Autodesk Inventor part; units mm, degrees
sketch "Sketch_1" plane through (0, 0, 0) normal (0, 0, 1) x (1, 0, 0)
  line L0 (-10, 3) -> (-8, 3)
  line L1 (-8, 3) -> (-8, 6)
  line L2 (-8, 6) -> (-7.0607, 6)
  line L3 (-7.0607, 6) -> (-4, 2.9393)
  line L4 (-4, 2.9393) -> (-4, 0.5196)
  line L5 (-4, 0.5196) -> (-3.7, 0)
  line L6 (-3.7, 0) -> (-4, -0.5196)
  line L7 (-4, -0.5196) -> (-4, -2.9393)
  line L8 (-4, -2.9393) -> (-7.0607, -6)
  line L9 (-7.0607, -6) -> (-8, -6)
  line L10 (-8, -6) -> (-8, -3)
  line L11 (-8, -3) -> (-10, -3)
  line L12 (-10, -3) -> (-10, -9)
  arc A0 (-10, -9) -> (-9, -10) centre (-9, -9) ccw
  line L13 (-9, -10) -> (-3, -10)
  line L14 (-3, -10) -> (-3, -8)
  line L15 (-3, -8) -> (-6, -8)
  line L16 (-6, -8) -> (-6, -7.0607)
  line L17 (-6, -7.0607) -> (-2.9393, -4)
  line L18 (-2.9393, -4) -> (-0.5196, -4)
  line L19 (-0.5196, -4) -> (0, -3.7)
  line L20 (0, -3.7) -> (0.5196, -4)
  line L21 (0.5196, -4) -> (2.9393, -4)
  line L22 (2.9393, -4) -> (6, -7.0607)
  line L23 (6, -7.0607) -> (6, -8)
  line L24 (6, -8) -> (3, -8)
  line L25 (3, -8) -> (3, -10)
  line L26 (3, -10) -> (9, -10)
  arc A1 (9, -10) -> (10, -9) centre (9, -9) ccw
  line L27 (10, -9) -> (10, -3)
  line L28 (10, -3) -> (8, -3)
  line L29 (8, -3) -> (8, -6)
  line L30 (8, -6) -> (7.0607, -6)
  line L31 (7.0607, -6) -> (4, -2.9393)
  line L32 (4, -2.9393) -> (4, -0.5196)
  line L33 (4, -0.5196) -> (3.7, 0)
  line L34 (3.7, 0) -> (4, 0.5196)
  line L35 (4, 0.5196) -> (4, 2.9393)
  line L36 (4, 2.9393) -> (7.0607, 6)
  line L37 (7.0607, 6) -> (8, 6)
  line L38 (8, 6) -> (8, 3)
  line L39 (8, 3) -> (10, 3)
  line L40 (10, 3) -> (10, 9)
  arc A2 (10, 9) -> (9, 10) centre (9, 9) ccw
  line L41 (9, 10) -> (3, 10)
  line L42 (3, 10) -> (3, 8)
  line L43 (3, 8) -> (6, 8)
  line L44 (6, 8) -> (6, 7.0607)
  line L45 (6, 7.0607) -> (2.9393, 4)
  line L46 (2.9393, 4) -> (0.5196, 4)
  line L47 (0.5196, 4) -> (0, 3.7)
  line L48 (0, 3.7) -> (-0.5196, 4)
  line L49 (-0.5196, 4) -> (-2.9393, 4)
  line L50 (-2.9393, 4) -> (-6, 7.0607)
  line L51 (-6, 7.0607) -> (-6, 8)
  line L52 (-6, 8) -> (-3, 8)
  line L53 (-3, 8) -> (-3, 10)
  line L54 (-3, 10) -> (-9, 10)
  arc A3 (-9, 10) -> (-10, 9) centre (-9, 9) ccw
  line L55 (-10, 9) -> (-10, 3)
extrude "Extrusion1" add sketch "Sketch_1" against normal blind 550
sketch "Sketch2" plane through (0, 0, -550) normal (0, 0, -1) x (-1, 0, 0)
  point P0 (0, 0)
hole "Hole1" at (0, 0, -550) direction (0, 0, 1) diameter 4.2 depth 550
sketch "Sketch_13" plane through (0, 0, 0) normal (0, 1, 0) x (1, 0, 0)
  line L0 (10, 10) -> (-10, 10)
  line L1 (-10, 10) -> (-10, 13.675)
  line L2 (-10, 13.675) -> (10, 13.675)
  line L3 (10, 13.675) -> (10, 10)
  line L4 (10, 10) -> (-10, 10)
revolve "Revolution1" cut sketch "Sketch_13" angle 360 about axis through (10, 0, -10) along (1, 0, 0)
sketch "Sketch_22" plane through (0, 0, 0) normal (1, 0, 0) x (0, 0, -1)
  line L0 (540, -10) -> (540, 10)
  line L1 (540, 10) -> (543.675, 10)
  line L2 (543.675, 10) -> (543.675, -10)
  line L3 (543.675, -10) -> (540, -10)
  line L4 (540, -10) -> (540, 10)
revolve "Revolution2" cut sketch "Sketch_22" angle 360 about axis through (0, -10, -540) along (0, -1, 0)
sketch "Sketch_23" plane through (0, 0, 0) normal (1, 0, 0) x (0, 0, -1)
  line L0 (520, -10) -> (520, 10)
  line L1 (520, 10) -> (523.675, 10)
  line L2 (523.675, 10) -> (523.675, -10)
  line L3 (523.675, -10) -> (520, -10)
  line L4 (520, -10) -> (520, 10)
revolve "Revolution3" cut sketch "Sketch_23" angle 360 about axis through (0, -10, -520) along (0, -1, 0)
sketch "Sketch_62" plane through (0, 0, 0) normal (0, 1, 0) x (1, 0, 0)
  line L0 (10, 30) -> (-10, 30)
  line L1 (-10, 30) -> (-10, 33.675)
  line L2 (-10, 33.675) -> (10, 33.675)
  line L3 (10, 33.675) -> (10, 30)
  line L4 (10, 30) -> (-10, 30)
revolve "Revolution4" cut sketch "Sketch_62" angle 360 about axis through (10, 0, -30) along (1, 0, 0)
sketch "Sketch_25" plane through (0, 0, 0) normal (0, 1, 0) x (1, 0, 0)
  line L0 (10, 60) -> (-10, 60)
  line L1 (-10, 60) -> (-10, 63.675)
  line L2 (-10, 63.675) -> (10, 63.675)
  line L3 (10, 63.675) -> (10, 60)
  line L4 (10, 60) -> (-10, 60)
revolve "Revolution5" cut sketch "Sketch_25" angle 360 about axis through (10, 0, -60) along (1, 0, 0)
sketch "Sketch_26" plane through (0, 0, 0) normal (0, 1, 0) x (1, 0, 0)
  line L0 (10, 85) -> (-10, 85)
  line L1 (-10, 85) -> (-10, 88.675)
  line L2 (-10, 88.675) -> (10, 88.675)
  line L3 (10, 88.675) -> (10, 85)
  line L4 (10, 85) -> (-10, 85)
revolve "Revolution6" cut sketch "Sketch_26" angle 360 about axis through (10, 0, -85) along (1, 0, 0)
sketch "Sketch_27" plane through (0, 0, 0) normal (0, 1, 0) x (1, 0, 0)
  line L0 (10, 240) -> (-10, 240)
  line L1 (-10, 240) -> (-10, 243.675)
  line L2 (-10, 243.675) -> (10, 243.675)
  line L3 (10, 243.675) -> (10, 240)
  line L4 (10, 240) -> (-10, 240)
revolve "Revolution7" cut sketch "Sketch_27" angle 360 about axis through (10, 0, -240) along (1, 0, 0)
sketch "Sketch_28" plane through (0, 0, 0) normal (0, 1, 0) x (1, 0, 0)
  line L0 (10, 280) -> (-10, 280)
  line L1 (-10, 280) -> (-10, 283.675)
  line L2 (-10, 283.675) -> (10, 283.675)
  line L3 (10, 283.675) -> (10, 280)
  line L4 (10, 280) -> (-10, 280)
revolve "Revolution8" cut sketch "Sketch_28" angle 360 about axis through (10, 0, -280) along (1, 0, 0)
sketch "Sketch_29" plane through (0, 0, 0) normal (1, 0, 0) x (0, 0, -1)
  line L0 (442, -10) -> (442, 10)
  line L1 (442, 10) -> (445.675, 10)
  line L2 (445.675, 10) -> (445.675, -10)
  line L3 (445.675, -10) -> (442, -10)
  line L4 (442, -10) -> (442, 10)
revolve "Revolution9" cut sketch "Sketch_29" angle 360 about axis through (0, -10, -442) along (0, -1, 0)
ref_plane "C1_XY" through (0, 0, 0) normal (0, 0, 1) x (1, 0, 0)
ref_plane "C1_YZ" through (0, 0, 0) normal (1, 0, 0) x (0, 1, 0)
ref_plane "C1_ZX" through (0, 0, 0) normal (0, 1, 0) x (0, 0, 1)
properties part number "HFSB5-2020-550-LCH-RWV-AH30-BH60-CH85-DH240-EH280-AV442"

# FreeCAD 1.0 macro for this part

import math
import FreeCAD as App
import Part
import Sketcher

V = App.Vector
Q = App.Units.Quantity

doc = App.newDocument("Part")
params = doc.addObject("Spreadsheet::Sheet", "Params")
for row, (alias, value) in enumerate([
    ("sketch1_radius", "1 mm"),
    ("sketch1_width", "2 mm"),
    ("sketch1_width2", "6 mm"),
    ("sketch1_width3", "3 mm"),
    ("sketch1_length", "0.6 mm"),
    ("pad1_length", "550 mm"),
    ("sketch2_diameter", "4.2 mm"),
    ("hole_diameter", "4.2 mm"),
    ("hole_depth", "550 mm"),
    ("sketch3_width", "20 mm"),
    ("groove_angle", "360 deg"),
    ("sketch4_width", "20 mm"),
    ("groove2_angle", "360 deg"),
    ("sketch5_width", "20 mm"),
    ("groove3_angle", "360 deg"),
    ("sketch6_width", "20 mm"),
    ("groove4_angle", "360 deg"),
    ("sketch7_width", "20 mm"),
    ("groove5_angle", "360 deg"),
    ("sketch8_width", "20 mm"),
    ("groove6_angle", "360 deg"),
    ("sketch9_width", "20 mm"),
    ("groove7_angle", "360 deg"),
    ("sketch10_width", "20 mm"),
    ("groove8_angle", "360 deg"),
    ("sketch11_width", "20 mm"),
    ("groove9_angle", "360 deg"),
], start=1):
    params.set(f"A{row}", alias)
    params.set(f"B{row}", "=" + value)
    params.setAlias(f"B{row}", alias)

body = doc.addObject("PartDesign::Body", "Body")

sketch1 = body.newObject("Sketcher::SketchObject", "Sketch")
sketch1.AttachmentSupport = (doc.getObject("XY_Plane"), [""])
sketch1.MapMode = "FlatFace"
sketch1.addGeometry([
    Part.LineSegment(V(-10, 9, 0), V(-10, 3, 0)),
    Part.LineSegment(V(-10, 3, 0), V(-8, 3, 0)),
    Part.LineSegment(V(-8, 3, 0), V(-8, 6, 0)),
    Part.LineSegment(V(-8, 6, 0), V(-7.0607, 6, 0)),
    Part.LineSegment(V(-7.0607, 6, 0), V(-4, 2.9393, 0)),
    Part.LineSegment(V(-4, 2.9393, 0), V(-4, 0.5196, 0)),
    Part.LineSegment(V(-4, 0.5196, 0), V(-3.7, 0, 0)),
    Part.LineSegment(V(-3.7, 0, 0), V(-4, -0.5196, 0)),
    Part.LineSegment(V(-4, -0.5196, 0), V(-4, -2.9393, 0)),
    Part.LineSegment(V(-4, -2.9393, 0), V(-7.0607, -6, 0)),
    Part.LineSegment(V(-7.0607, -6, 0), V(-8, -6, 0)),
    Part.LineSegment(V(-8, -6, 0), V(-8, -3, 0)),
    Part.LineSegment(V(-8, -3, 0), V(-10, -3, 0)),
    Part.LineSegment(V(-10, -3, 0), V(-10, -9, 0)),
    Part.ArcOfCircle(Part.Circle(V(-9, -9, 0), V(0, 0, 1), 1), math.radians(180), math.radians(270)),
    Part.LineSegment(V(-9, -10, 0), V(-3, -10, 0)),
    Part.LineSegment(V(-3, -10, 0), V(-3, -8, 0)),
    Part.LineSegment(V(-3, -8, 0), V(-6, -8, 0)),
    Part.LineSegment(V(-6, -8, 0), V(-6, -7.0607, 0)),
    Part.LineSegment(V(-6, -7.0607, 0), V(-2.9393, -4, 0)),
    Part.LineSegment(V(-2.9393, -4, 0), V(-0.5196, -4, 0)),
    Part.LineSegment(V(-0.5196, -4, 0), V(0, -3.7, 0)),
    Part.LineSegment(V(0, -3.7, 0), V(0.5196, -4, 0)),
    Part.LineSegment(V(0.5196, -4, 0), V(2.9393, -4, 0)),
    Part.LineSegment(V(2.9393, -4, 0), V(6, -7.0607, 0)),
    Part.LineSegment(V(6, -7.0607, 0), V(6, -8, 0)),
    Part.LineSegment(V(6, -8, 0), V(3, -8, 0)),
    Part.LineSegment(V(3, -8, 0), V(3, -10, 0)),
    Part.LineSegment(V(3, -10, 0), V(9, -10, 0)),
    Part.ArcOfCircle(Part.Circle(V(9, -9, 0), V(0, 0, 1), 1), math.radians(-90), math.radians(0)),
    Part.LineSegment(V(10, -9, 0), V(10, -3, 0)),
    Part.LineSegment(V(10, -3, 0), V(8, -3, 0)),
    Part.LineSegment(V(8, -3, 0), V(8, -6, 0)),
    Part.LineSegment(V(8, -6, 0), V(7.0607, -6, 0)),
    Part.LineSegment(V(7.0607, -6, 0), V(4, -2.9393, 0)),
    Part.LineSegment(V(4, -2.9393, 0), V(4, -0.5196, 0)),
    Part.LineSegment(V(4, -0.5196, 0), V(3.7, 0, 0)),
    Part.LineSegment(V(3.7, 0, 0), V(4, 0.5196, 0)),
    Part.LineSegment(V(4, 0.5196, 0), V(4, 2.9393, 0)),
    Part.LineSegment(V(4, 2.9393, 0), V(7.0607, 6, 0)),
    Part.LineSegment(V(7.0607, 6, 0), V(8, 6, 0)),
    Part.LineSegment(V(8, 6, 0), V(8, 3, 0)),
    Part.LineSegment(V(8, 3, 0), V(10, 3, 0)),
    Part.LineSegment(V(10, 3, 0), V(10, 9, 0)),
    Part.ArcOfCircle(Part.Circle(V(9, 9, 0), V(0, 0, 1), 1), math.radians(0), math.radians(90)),
    Part.LineSegment(V(9, 10, 0), V(3, 10, 0)),
    Part.LineSegment(V(3, 10, 0), V(3, 8, 0)),
    Part.LineSegment(V(3, 8, 0), V(6, 8, 0)),
    Part.LineSegment(V(6, 8, 0), V(6, 7.0607, 0)),
    Part.LineSegment(V(6, 7.0607, 0), V(2.9393, 4, 0)),
    Part.LineSegment(V(2.9393, 4, 0), V(0.5196, 4, 0)),
    Part.LineSegment(V(0.5196, 4, 0), V(0, 3.7, 0)),
    Part.LineSegment(V(0, 3.7, 0), V(-0.5196, 4, 0)),
    Part.LineSegment(V(-0.5196, 4, 0), V(-2.9393, 4, 0)),
    Part.LineSegment(V(-2.9393, 4, 0), V(-6, 7.0607, 0)),
    Part.LineSegment(V(-6, 7.0607, 0), V(-6, 8, 0)),
    Part.LineSegment(V(-6, 8, 0), V(-3, 8, 0)),
    Part.LineSegment(V(-3, 8, 0), V(-3, 10, 0)),
    Part.LineSegment(V(-3, 10, 0), V(-9, 10, 0)),
    Part.ArcOfCircle(Part.Circle(V(-9, 9, 0), V(0, 0, 1), 1), math.radians(90), math.radians(180)),
], False)
sketch1.addConstraint([
    Sketcher.Constraint("Coincident", 0, 2, 1, 1),
    Sketcher.Constraint("Coincident", 1, 2, 2, 1),
    Sketcher.Constraint("Coincident", 2, 2, 3, 1),
    Sketcher.Constraint("Coincident", 3, 2, 4, 1),
    Sketcher.Constraint("Coincident", 4, 2, 5, 1),
    Sketcher.Constraint("Coincident", 5, 2, 6, 1),
    Sketcher.Constraint("Coincident", 6, 2, 7, 1),
    Sketcher.Constraint("Coincident", 7, 2, 8, 1),
    Sketcher.Constraint("Coincident", 8, 2, 9, 1),
    Sketcher.Constraint("Coincident", 9, 2, 10, 1),
    Sketcher.Constraint("Coincident", 10, 2, 11, 1),
    Sketcher.Constraint("Coincident", 11, 2, 12, 1),
    Sketcher.Constraint("Coincident", 12, 2, 13, 1),
    Sketcher.Constraint("Tangent", 13, 2, 14, 1),
    Sketcher.Constraint("Tangent", 14, 2, 15, 1),
    Sketcher.Constraint("Coincident", 15, 2, 16, 1),
    Sketcher.Constraint("Coincident", 16, 2, 17, 1),
    Sketcher.Constraint("Coincident", 17, 2, 18, 1),
    Sketcher.Constraint("Coincident", 18, 2, 19, 1),
    Sketcher.Constraint("Coincident", 19, 2, 20, 1),
    Sketcher.Constraint("Coincident", 20, 2, 21, 1),
    Sketcher.Constraint("Coincident", 21, 2, 22, 1),
    Sketcher.Constraint("Coincident", 22, 2, 23, 1),
    Sketcher.Constraint("Coincident", 23, 2, 24, 1),
    Sketcher.Constraint("Coincident", 24, 2, 25, 1),
    Sketcher.Constraint("Coincident", 25, 2, 26, 1),
    Sketcher.Constraint("Coincident", 26, 2, 27, 1),
    Sketcher.Constraint("Coincident", 27, 2, 28, 1),
    Sketcher.Constraint("Tangent", 28, 2, 29, 1),
    Sketcher.Constraint("Tangent", 29, 2, 30, 1),
    Sketcher.Constraint("Coincident", 30, 2, 31, 1),
    Sketcher.Constraint("Coincident", 31, 2, 32, 1),
    Sketcher.Constraint("Coincident", 32, 2, 33, 1),
    Sketcher.Constraint("Coincident", 33, 2, 34, 1),
    Sketcher.Constraint("Coincident", 34, 2, 35, 1),
    Sketcher.Constraint("Coincident", 35, 2, 36, 1),
    Sketcher.Constraint("Coincident", 36, 2, 37, 1),
    Sketcher.Constraint("Coincident", 37, 2, 38, 1),
    Sketcher.Constraint("Coincident", 38, 2, 39, 1),
    Sketcher.Constraint("Coincident", 39, 2, 40, 1),
    Sketcher.Constraint("Coincident", 40, 2, 41, 1),
    Sketcher.Constraint("Coincident", 41, 2, 42, 1),
    Sketcher.Constraint("Coincident", 42, 2, 43, 1),
    Sketcher.Constraint("Tangent", 43, 2, 44, 1),
    Sketcher.Constraint("Tangent", 44, 2, 45, 1),
    Sketcher.Constraint("Coincident", 45, 2, 46, 1),
    Sketcher.Constraint("Coincident", 46, 2, 47, 1),
    Sketcher.Constraint("Coincident", 47, 2, 48, 1),
    Sketcher.Constraint("Coincident", 48, 2, 49, 1),
    Sketcher.Constraint("Coincident", 49, 2, 50, 1),
    Sketcher.Constraint("Coincident", 50, 2, 51, 1),
    Sketcher.Constraint("Coincident", 51, 2, 52, 1),
    Sketcher.Constraint("Coincident", 52, 2, 53, 1),
    Sketcher.Constraint("Coincident", 53, 2, 54, 1),
    Sketcher.Constraint("Coincident", 54, 2, 55, 1),
    Sketcher.Constraint("Coincident", 55, 2, 56, 1),
    Sketcher.Constraint("Coincident", 56, 2, 57, 1),
    Sketcher.Constraint("Coincident", 57, 2, 58, 1),
    Sketcher.Constraint("Tangent", 58, 2, 59, 1),
    Sketcher.Constraint("Tangent", 59, 2, 0, 1),
    Sketcher.Constraint("Vertical", 0),
    Sketcher.Constraint("Horizontal", 1),
    Sketcher.Constraint("Vertical", 2),
    Sketcher.Constraint("Horizontal", 3),
    Sketcher.Constraint("Vertical", 5),
    Sketcher.Constraint("Vertical", 8),
    Sketcher.Constraint("Horizontal", 10),
    Sketcher.Constraint("Vertical", 11),
    Sketcher.Constraint("Horizontal", 12),
    Sketcher.Constraint("Vertical", 13),
    Sketcher.Constraint("Horizontal", 15),
    Sketcher.Constraint("Vertical", 16),
    Sketcher.Constraint("Horizontal", 17),
    Sketcher.Constraint("Vertical", 18),
    Sketcher.Constraint("Horizontal", 20),
    Sketcher.Constraint("Horizontal", 23),
    Sketcher.Constraint("Vertical", 25),
    Sketcher.Constraint("Horizontal", 26),
    Sketcher.Constraint("Vertical", 27),
    Sketcher.Constraint("Horizontal", 28),
    Sketcher.Constraint("Vertical", 30),
    Sketcher.Constraint("Horizontal", 31),
    Sketcher.Constraint("Vertical", 32),
    Sketcher.Constraint("Horizontal", 33),
    Sketcher.Constraint("Vertical", 35),
    Sketcher.Constraint("Vertical", 38),
    Sketcher.Constraint("Horizontal", 40),
    Sketcher.Constraint("Vertical", 41),
    Sketcher.Constraint("Horizontal", 42),
    Sketcher.Constraint("Vertical", 43),
    Sketcher.Constraint("Horizontal", 45),
    Sketcher.Constraint("Vertical", 46),
    Sketcher.Constraint("Horizontal", 47),
    Sketcher.Constraint("Vertical", 48),
    Sketcher.Constraint("Horizontal", 50),
    Sketcher.Constraint("Horizontal", 53),
    Sketcher.Constraint("Vertical", 55),
    Sketcher.Constraint("Horizontal", 56),
    Sketcher.Constraint("Vertical", 57),
    Sketcher.Constraint("Horizontal", 58),
    Sketcher.Constraint("Equal", 14, 29),
    Sketcher.Constraint("Equal", 29, 44),
    Sketcher.Constraint("Equal", 44, 59),
    Sketcher.Constraint("Symmetric", 14, 3, 44, 3, -1, 1),
    Sketcher.Constraint("Symmetric", 29, 3, 59, 3, -1, 1),
    Sketcher.Constraint("Symmetric", 1, 2, 31, 2, -1, 1),
    Sketcher.Constraint("Symmetric", 3, 2, 33, 2, -1, 1),
    Sketcher.Constraint("Symmetric", 4, 2, 34, 2, -1, 1),
    Sketcher.Constraint("Symmetric", 6, 2, 36, 2, -1, 1),
    Sketcher.Constraint("Symmetric", 7, 2, 37, 2, -1, 1),
    Sketcher.Constraint("Symmetric", 9, 2, 39, 2, -1, 1),
    Sketcher.Constraint("Symmetric", 11, 2, 41, 2, -1, 1),
    Sketcher.Constraint("Symmetric", 16, 2, 46, 2, -1, 1),
    Sketcher.Constraint("Symmetric", 18, 2, 48, 2, -1, 1),
    Sketcher.Constraint("Symmetric", 19, 2, 49, 2, -1, 1),
    Sketcher.Constraint("Symmetric", 21, 2, 51, 2, -1, 1),
    Sketcher.Constraint("Symmetric", 22, 2, 52, 2, -1, 1),
    Sketcher.Constraint("Symmetric", 24, 2, 54, 2, -1, 1),
    Sketcher.Constraint("Symmetric", 26, 2, 56, 2, -1, 1),
    Sketcher.Constraint("Symmetric", 14, 3, 29, 3, -2),
    Sketcher.Constraint("Symmetric", 20, 2, 22, 2, -2),
    Sketcher.Constraint("Symmetric", 18, 2, 24, 2, -2),
    Sketcher.Constraint("Symmetric", 16, 2, 26, 2, -2),
    Sketcher.Constraint("Symmetric", 11, 2, 31, 2, -2),
    Sketcher.Constraint("Symmetric", 9, 2, 33, 2, -2),
    Sketcher.Constraint("Symmetric", 8, 2, 34, 2, -2),
    Sketcher.Constraint("PointOnObject", 6, 2, -1),
    Sketcher.Constraint("PointOnObject", 21, 2, -2),
    Sketcher.Constraint("Perpendicular", 4, 9),
    Sketcher.Constraint("Parallel", 9, 19),
    Sketcher.Constraint("Perpendicular", 6, 21),
    Sketcher.Constraint("Perpendicular", 7, 22),
    Sketcher.Constraint("Perpendicular", 19, 24),
    Sketcher.Constraint("Perpendicular", 21, 36),
    Sketcher.Constraint("Perpendicular", 34, 39),
    Sketcher.Constraint("Perpendicular", 36, 51),
    Sketcher.Constraint("Perpendicular", 49, 54),
    Sketcher.Constraint("Equal", 58, 0),
    Sketcher.Constraint("Equal", 56, 2),
    Sketcher.Constraint("Equal", 53, 5),
    Sketcher.Constraint("Equal", 42, 16),
    Sketcher.Constraint("Equal", 40, 18),
    Sketcher.Constraint("Equal", 9, 19),
    Sketcher.Constraint("Equal", 7, 21),
    Sketcher.Constraint("Radius", 14, 1.0),
    Sketcher.Constraint("DistanceX", 1, 1, 1, 2, 2.0),
    Sketcher.Constraint("DistanceX", 15, 1, 15, 2, 6.0),
    Sketcher.Constraint("DistanceX", 17, 2, 17, 1, 3.0),
    Sketcher.Constraint("Angle", 6, Q("-59.9993 deg")),
    Sketcher.Constraint("DistanceX", 14, 3, -1, 1, 9.0),
    Sketcher.Constraint("DistanceX", 4, 2, -1, 1, 4.0),
    Sketcher.Constraint("Distance", 6, 0.6),
    Sketcher.Constraint("DistanceX", 3, 1, 3, 2, 0.9393),
])
sketch1.setExpression("Constraints[144]", "Params.sketch1_radius")
sketch1.setExpression("Constraints[145]", "Params.sketch1_width")
sketch1.setExpression("Constraints[146]", "Params.sketch1_width2")
sketch1.setExpression("Constraints[147]", "Params.sketch1_width3")
sketch1.setExpression("Constraints[151]", "Params.sketch1_length")
pad1 = body.newObject("PartDesign::Pad", "Pad")
pad1.Profile = sketch1
pad1.setExpression("Length", "Params.pad1_length")
pad1.Reversed = True

sketch2 = body.newObject("Sketcher::SketchObject", "Sketch001")
sketch2.AttachmentSupport = (doc.getObject("XY_Plane"), [""])
sketch2.MapMode = "FlatFace"
sketch2.AttachmentOffset = App.Placement(V(0, 0, -550), App.Rotation())
sketch2.addGeometry(Part.Circle(V(0, 0, 0), V(0, 0, 1), 2.1), False)
sketch2.addConstraint([
    Sketcher.Constraint("Coincident", 0, 3, -1, 1),
    Sketcher.Constraint("Diameter", 0, 4.2),
])
sketch2.setExpression("Constraints[1]", "Params.sketch2_diameter")
doc.recompute()
hole = body.newObject("PartDesign::Hole", "Hole")
hole.Profile = sketch2
hole.ThreadType = "None"
hole.setExpression("Diameter", "Params.hole_diameter")
hole.DepthType = "Dimension"
hole.setExpression("Depth", "Params.hole_depth")
hole.DrillPoint = "Flat"
hole.Reversed = True

sketch3 = body.newObject("Sketcher::SketchObject", "Sketch002")
sketch3.AttachmentSupport = (doc.getObject("XZ_Plane"), [""])
sketch3.MapMode = "FlatFace"
sketch3.addGeometry([
    Part.LineSegment(V(-10, -10, 0), V(10, -10, 0)),
    Part.LineSegment(V(10, -10, 0), V(10, -13.675, 0)),
    Part.LineSegment(V(10, -13.675, 0), V(-10, -13.675, 0)),
    Part.LineSegment(V(-10, -13.675, 0), V(-10, -10, 0)),
], False)
sketch3.addGeometry(Part.LineSegment(V(-10, -10, 0), V(10, -10, 0)), True)
sketch3.addConstraint([
    Sketcher.Constraint("Coincident", 0, 2, 1, 1),
    Sketcher.Constraint("Coincident", 1, 2, 2, 1),
    Sketcher.Constraint("Coincident", 2, 2, 3, 1),
    Sketcher.Constraint("Coincident", 3, 2, 0, 1),
    Sketcher.Constraint("Horizontal", 0),
    Sketcher.Constraint("Vertical", 1),
    Sketcher.Constraint("Horizontal", 2),
    Sketcher.Constraint("Vertical", 3),
    Sketcher.Constraint("Horizontal", 4),
    Sketcher.Constraint("Coincident", 4, 1, 3, 2),
    Sketcher.Constraint("Vertical", 1, 2, 4, 2),
    Sketcher.Constraint("DistanceX", 0, 1, 0, 2, 20.0),
    Sketcher.Constraint("DistanceX", -1, 1, 0, 2, 10.0),
    Sketcher.Constraint("DistanceY", 0, 2, -1, 1, 10.0),
    Sketcher.Constraint("DistanceY", 1, 2, 1, 1, 3.675),
])
sketch3.setExpression("Constraints[11]", "Params.sketch3_width")
groove = body.newObject("PartDesign::Groove", "Groove")
groove.Profile = sketch3
groove.ReferenceAxis = (sketch3, ["Axis0"])
groove.setExpression("Angle", "Params.groove_angle")

sketch4 = body.newObject("Sketcher::SketchObject", "Sketch003")
sketch4.AttachmentSupport = (doc.getObject("YZ_Plane"), [""])
sketch4.MapMode = "FlatFace"
sketch4.addGeometry([
    Part.LineSegment(V(10, -540, 0), V(-10, -540, 0)),
    Part.LineSegment(V(-10, -540, 0), V(-10, -543.675, 0)),
    Part.LineSegment(V(-10, -543.675, 0), V(10, -543.675, 0)),
    Part.LineSegment(V(10, -543.675, 0), V(10, -540, 0)),
], False)
sketch4.addGeometry(Part.LineSegment(V(10, -540, 0), V(-10, -540, 0)), True)
sketch4.addConstraint([
    Sketcher.Constraint("Coincident", 0, 2, 1, 1),
    Sketcher.Constraint("Coincident", 1, 2, 2, 1),
    Sketcher.Constraint("Coincident", 2, 2, 3, 1),
    Sketcher.Constraint("Coincident", 3, 2, 0, 1),
    Sketcher.Constraint("Horizontal", 0),
    Sketcher.Constraint("Vertical", 1),
    Sketcher.Constraint("Horizontal", 2),
    Sketcher.Constraint("Vertical", 3),
    Sketcher.Constraint("Horizontal", 4),
    Sketcher.Constraint("Coincident", 4, 1, 3, 2),
    Sketcher.Constraint("Vertical", 1, 2, 4, 2),
    Sketcher.Constraint("DistanceX", 0, 2, 0, 1, 20.0),
    Sketcher.Constraint("DistanceX", 0, 2, -1, 1, 10.0),
    Sketcher.Constraint("DistanceY", 0, 2, -1, 1, 540.0),
    Sketcher.Constraint("DistanceY", 1, 2, 1, 1, 3.675),
])
sketch4.setExpression("Constraints[11]", "Params.sketch4_width")
groove2 = body.newObject("PartDesign::Groove", "Groove001")
groove2.Profile = sketch4
groove2.ReferenceAxis = (sketch4, ["Axis0"])
groove2.setExpression("Angle", "Params.groove2_angle")

sketch5 = body.newObject("Sketcher::SketchObject", "Sketch004")
sketch5.AttachmentSupport = (doc.getObject("YZ_Plane"), [""])
sketch5.MapMode = "FlatFace"
sketch5.addGeometry([
    Part.LineSegment(V(10, -520, 0), V(-10, -520, 0)),
    Part.LineSegment(V(-10, -520, 0), V(-10, -523.675, 0)),
    Part.LineSegment(V(-10, -523.675, 0), V(10, -523.675, 0)),
    Part.LineSegment(V(10, -523.675, 0), V(10, -520, 0)),
], False)
sketch5.addGeometry(Part.LineSegment(V(10, -520, 0), V(-10, -520, 0)), True)
sketch5.addConstraint([
    Sketcher.Constraint("Coincident", 0, 2, 1, 1),
    Sketcher.Constraint("Coincident", 1, 2, 2, 1),
    Sketcher.Constraint("Coincident", 2, 2, 3, 1),
    Sketcher.Constraint("Coincident", 3, 2, 0, 1),
    Sketcher.Constraint("Horizontal", 0),
    Sketcher.Constraint("Vertical", 1),
    Sketcher.Constraint("Horizontal", 2),
    Sketcher.Constraint("Vertical", 3),
    Sketcher.Constraint("Horizontal", 4),
    Sketcher.Constraint("Coincident", 4, 1, 3, 2),
    Sketcher.Constraint("Vertical", 1, 2, 4, 2),
    Sketcher.Constraint("DistanceX", 0, 2, 0, 1, 20.0),
    Sketcher.Constraint("DistanceX", 0, 2, -1, 1, 10.0),
    Sketcher.Constraint("DistanceY", 0, 2, -1, 1, 520.0),
    Sketcher.Constraint("DistanceY", 1, 2, 1, 1, 3.675),
])
sketch5.setExpression("Constraints[11]", "Params.sketch5_width")
groove3 = body.newObject("PartDesign::Groove", "Groove002")
groove3.Profile = sketch5
groove3.ReferenceAxis = (sketch5, ["Axis0"])
groove3.setExpression("Angle", "Params.groove3_angle")

sketch6 = body.newObject("Sketcher::SketchObject", "Sketch005")
sketch6.AttachmentSupport = (doc.getObject("XZ_Plane"), [""])
sketch6.MapMode = "FlatFace"
sketch6.addGeometry([
    Part.LineSegment(V(-10, -30, 0), V(10, -30, 0)),
    Part.LineSegment(V(10, -30, 0), V(10, -33.675, 0)),
    Part.LineSegment(V(10, -33.675, 0), V(-10, -33.675, 0)),
    Part.LineSegment(V(-10, -33.675, 0), V(-10, -30, 0)),
], False)
sketch6.addGeometry(Part.LineSegment(V(-10, -30, 0), V(10, -30, 0)), True)
sketch6.addConstraint([
    Sketcher.Constraint("Coincident", 0, 2, 1, 1),
    Sketcher.Constraint("Coincident", 1, 2, 2, 1),
    Sketcher.Constraint("Coincident", 2, 2, 3, 1),
    Sketcher.Constraint("Coincident", 3, 2, 0, 1),
    Sketcher.Constraint("Horizontal", 0),
    Sketcher.Constraint("Vertical", 1),
    Sketcher.Constraint("Horizontal", 2),
    Sketcher.Constraint("Vertical", 3),
    Sketcher.Constraint("Horizontal", 4),
    Sketcher.Constraint("Coincident", 4, 1, 3, 2),
    Sketcher.Constraint("Vertical", 1, 2, 4, 2),
    Sketcher.Constraint("DistanceX", 0, 1, 0, 2, 20.0),
    Sketcher.Constraint("DistanceX", -1, 1, 0, 2, 10.0),
    Sketcher.Constraint("DistanceY", 0, 2, -1, 1, 30.0),
    Sketcher.Constraint("DistanceY", 1, 2, 1, 1, 3.675),
])
sketch6.setExpression("Constraints[11]", "Params.sketch6_width")
groove4 = body.newObject("PartDesign::Groove", "Groove003")
groove4.Profile = sketch6
groove4.ReferenceAxis = (sketch6, ["Axis0"])
groove4.setExpression("Angle", "Params.groove4_angle")

sketch7 = body.newObject("Sketcher::SketchObject", "Sketch006")
sketch7.AttachmentSupport = (doc.getObject("XZ_Plane"), [""])
sketch7.MapMode = "FlatFace"
sketch7.addGeometry([
    Part.LineSegment(V(-10, -60, 0), V(10, -60, 0)),
    Part.LineSegment(V(10, -60, 0), V(10, -63.675, 0)),
    Part.LineSegment(V(10, -63.675, 0), V(-10, -63.675, 0)),
    Part.LineSegment(V(-10, -63.675, 0), V(-10, -60, 0)),
], False)
sketch7.addGeometry(Part.LineSegment(V(-10, -60, 0), V(10, -60, 0)), True)
sketch7.addConstraint([
    Sketcher.Constraint("Coincident", 0, 2, 1, 1),
    Sketcher.Constraint("Coincident", 1, 2, 2, 1),
    Sketcher.Constraint("Coincident", 2, 2, 3, 1),
    Sketcher.Constraint("Coincident", 3, 2, 0, 1),
    Sketcher.Constraint("Horizontal", 0),
    Sketcher.Constraint("Vertical", 1),
    Sketcher.Constraint("Horizontal", 2),
    Sketcher.Constraint("Vertical", 3),
    Sketcher.Constraint("Horizontal", 4),
    Sketcher.Constraint("Coincident", 4, 1, 3, 2),
    Sketcher.Constraint("Vertical", 1, 2, 4, 2),
    Sketcher.Constraint("DistanceX", 0, 1, 0, 2, 20.0),
    Sketcher.Constraint("DistanceX", -1, 1, 0, 2, 10.0),
    Sketcher.Constraint("DistanceY", 0, 2, -1, 1, 60.0),
    Sketcher.Constraint("DistanceY", 1, 2, 1, 1, 3.675),
])
sketch7.setExpression("Constraints[11]", "Params.sketch7_width")
groove5 = body.newObject("PartDesign::Groove", "Groove004")
groove5.Profile = sketch7
groove5.ReferenceAxis = (sketch7, ["Axis0"])
groove5.setExpression("Angle", "Params.groove5_angle")

sketch8 = body.newObject("Sketcher::SketchObject", "Sketch007")
sketch8.AttachmentSupport = (doc.getObject("XZ_Plane"), [""])
sketch8.MapMode = "FlatFace"
sketch8.addGeometry([
    Part.LineSegment(V(-10, -85, 0), V(10, -85, 0)),
    Part.LineSegment(V(10, -85, 0), V(10, -88.675, 0)),
    Part.LineSegment(V(10, -88.675, 0), V(-10, -88.675, 0)),
    Part.LineSegment(V(-10, -88.675, 0), V(-10, -85, 0)),
], False)
sketch8.addGeometry(Part.LineSegment(V(-10, -85, 0), V(10, -85, 0)), True)
sketch8.addConstraint([
    Sketcher.Constraint("Coincident", 0, 2, 1, 1),
    Sketcher.Constraint("Coincident", 1, 2, 2, 1),
    Sketcher.Constraint("Coincident", 2, 2, 3, 1),
    Sketcher.Constraint("Coincident", 3, 2, 0, 1),
    Sketcher.Constraint("Horizontal", 0),
    Sketcher.Constraint("Vertical", 1),
    Sketcher.Constraint("Horizontal", 2),
    Sketcher.Constraint("Vertical", 3),
    Sketcher.Constraint("Horizontal", 4),
    Sketcher.Constraint("Coincident", 4, 1, 3, 2),
    Sketcher.Constraint("Vertical", 1, 2, 4, 2),
    Sketcher.Constraint("DistanceX", 0, 1, 0, 2, 20.0),
    Sketcher.Constraint("DistanceX", -1, 1, 0, 2, 10.0),
    Sketcher.Constraint("DistanceY", 0, 2, -1, 1, 85.0),
    Sketcher.Constraint("DistanceY", 1, 2, 1, 1, 3.675),
])
sketch8.setExpression("Constraints[11]", "Params.sketch8_width")
groove6 = body.newObject("PartDesign::Groove", "Groove005")
groove6.Profile = sketch8
groove6.ReferenceAxis = (sketch8, ["Axis0"])
groove6.setExpression("Angle", "Params.groove6_angle")

sketch9 = body.newObject("Sketcher::SketchObject", "Sketch008")
sketch9.AttachmentSupport = (doc.getObject("XZ_Plane"), [""])
sketch9.MapMode = "FlatFace"
sketch9.addGeometry([
    Part.LineSegment(V(-10, -240, 0), V(10, -240, 0)),
    Part.LineSegment(V(10, -240, 0), V(10, -243.675, 0)),
    Part.LineSegment(V(10, -243.675, 0), V(-10, -243.675, 0)),
    Part.LineSegment(V(-10, -243.675, 0), V(-10, -240, 0)),
], False)
sketch9.addGeometry(Part.LineSegment(V(-10, -240, 0), V(10, -240, 0)), True)
sketch9.addConstraint([
    Sketcher.Constraint("Coincident", 0, 2, 1, 1),
    Sketcher.Constraint("Coincident", 1, 2, 2, 1),
    Sketcher.Constraint("Coincident", 2, 2, 3, 1),
    Sketcher.Constraint("Coincident", 3, 2, 0, 1),
    Sketcher.Constraint("Horizontal", 0),
    Sketcher.Constraint("Vertical", 1),
    Sketcher.Constraint("Horizontal", 2),
    Sketcher.Constraint("Vertical", 3),
    Sketcher.Constraint("Horizontal", 4),
    Sketcher.Constraint("Coincident", 4, 1, 3, 2),
    Sketcher.Constraint("Vertical", 1, 2, 4, 2),
    Sketcher.Constraint("DistanceX", 0, 1, 0, 2, 20.0),
    Sketcher.Constraint("DistanceX", -1, 1, 0, 2, 10.0),
    Sketcher.Constraint("DistanceY", 0, 2, -1, 1, 240.0),
    Sketcher.Constraint("DistanceY", 1, 2, 1, 1, 3.675),
])
sketch9.setExpression("Constraints[11]", "Params.sketch9_width")
groove7 = body.newObject("PartDesign::Groove", "Groove006")
groove7.Profile = sketch9
groove7.ReferenceAxis = (sketch9, ["Axis0"])
groove7.setExpression("Angle", "Params.groove7_angle")

sketch10 = body.newObject("Sketcher::SketchObject", "Sketch009")
sketch10.AttachmentSupport = (doc.getObject("XZ_Plane"), [""])
sketch10.MapMode = "FlatFace"
sketch10.addGeometry([
    Part.LineSegment(V(-10, -280, 0), V(10, -280, 0)),
    Part.LineSegment(V(10, -280, 0), V(10, -283.675, 0)),
    Part.LineSegment(V(10, -283.675, 0), V(-10, -283.675, 0)),
    Part.LineSegment(V(-10, -283.675, 0), V(-10, -280, 0)),
], False)
sketch10.addGeometry(Part.LineSegment(V(-10, -280, 0), V(10, -280, 0)), True)
sketch10.addConstraint([
    Sketcher.Constraint("Coincident", 0, 2, 1, 1),
    Sketcher.Constraint("Coincident", 1, 2, 2, 1),
    Sketcher.Constraint("Coincident", 2, 2, 3, 1),
    Sketcher.Constraint("Coincident", 3, 2, 0, 1),
    Sketcher.Constraint("Horizontal", 0),
    Sketcher.Constraint("Vertical", 1),
    Sketcher.Constraint("Horizontal", 2),
    Sketcher.Constraint("Vertical", 3),
    Sketcher.Constraint("Horizontal", 4),
    Sketcher.Constraint("Coincident", 4, 1, 3, 2),
    Sketcher.Constraint("Vertical", 1, 2, 4, 2),
    Sketcher.Constraint("DistanceX", 0, 1, 0, 2, 20.0),
    Sketcher.Constraint("DistanceX", -1, 1, 0, 2, 10.0),
    Sketcher.Constraint("DistanceY", 0, 2, -1, 1, 280.0),
    Sketcher.Constraint("DistanceY", 1, 2, 1, 1, 3.675),
])
sketch10.setExpression("Constraints[11]", "Params.sketch10_width")
groove8 = body.newObject("PartDesign::Groove", "Groove007")
groove8.Profile = sketch10
groove8.ReferenceAxis = (sketch10, ["Axis0"])
groove8.setExpression("Angle", "Params.groove8_angle")

sketch11 = body.newObject("Sketcher::SketchObject", "Sketch010")
sketch11.AttachmentSupport = (doc.getObject("YZ_Plane"), [""])
sketch11.MapMode = "FlatFace"
sketch11.addGeometry([
    Part.LineSegment(V(10, -442, 0), V(-10, -442, 0)),
    Part.LineSegment(V(-10, -442, 0), V(-10, -445.675, 0)),
    Part.LineSegment(V(-10, -445.675, 0), V(10, -445.675, 0)),
    Part.LineSegment(V(10, -445.675, 0), V(10, -442, 0)),
], False)
sketch11.addGeometry(Part.LineSegment(V(10, -442, 0), V(-10, -442, 0)), True)
sketch11.addConstraint([
    Sketcher.Constraint("Coincident", 0, 2, 1, 1),
    Sketcher.Constraint("Coincident", 1, 2, 2, 1),
    Sketcher.Constraint("Coincident", 2, 2, 3, 1),
    Sketcher.Constraint("Coincident", 3, 2, 0, 1),
    Sketcher.Constraint("Horizontal", 0),
    Sketcher.Constraint("Vertical", 1),
    Sketcher.Constraint("Horizontal", 2),
    Sketcher.Constraint("Vertical", 3),
    Sketcher.Constraint("Horizontal", 4),
    Sketcher.Constraint("Coincident", 4, 1, 3, 2),
    Sketcher.Constraint("Vertical", 1, 2, 4, 2),
    Sketcher.Constraint("DistanceX", 0, 2, 0, 1, 20.0),
    Sketcher.Constraint("DistanceX", 0, 2, -1, 1, 10.0),
    Sketcher.Constraint("DistanceY", 0, 2, -1, 1, 442.0),
    Sketcher.Constraint("DistanceY", 1, 2, 1, 1, 3.675),
])
sketch11.setExpression("Constraints[11]", "Params.sketch11_width")
groove9 = body.newObject("PartDesign::Groove", "Groove008")
groove9.Profile = sketch11
groove9.ReferenceAxis = (sketch11, ["Axis0"])
groove9.setExpression("Angle", "Params.groove9_angle")

doc.recompute()
